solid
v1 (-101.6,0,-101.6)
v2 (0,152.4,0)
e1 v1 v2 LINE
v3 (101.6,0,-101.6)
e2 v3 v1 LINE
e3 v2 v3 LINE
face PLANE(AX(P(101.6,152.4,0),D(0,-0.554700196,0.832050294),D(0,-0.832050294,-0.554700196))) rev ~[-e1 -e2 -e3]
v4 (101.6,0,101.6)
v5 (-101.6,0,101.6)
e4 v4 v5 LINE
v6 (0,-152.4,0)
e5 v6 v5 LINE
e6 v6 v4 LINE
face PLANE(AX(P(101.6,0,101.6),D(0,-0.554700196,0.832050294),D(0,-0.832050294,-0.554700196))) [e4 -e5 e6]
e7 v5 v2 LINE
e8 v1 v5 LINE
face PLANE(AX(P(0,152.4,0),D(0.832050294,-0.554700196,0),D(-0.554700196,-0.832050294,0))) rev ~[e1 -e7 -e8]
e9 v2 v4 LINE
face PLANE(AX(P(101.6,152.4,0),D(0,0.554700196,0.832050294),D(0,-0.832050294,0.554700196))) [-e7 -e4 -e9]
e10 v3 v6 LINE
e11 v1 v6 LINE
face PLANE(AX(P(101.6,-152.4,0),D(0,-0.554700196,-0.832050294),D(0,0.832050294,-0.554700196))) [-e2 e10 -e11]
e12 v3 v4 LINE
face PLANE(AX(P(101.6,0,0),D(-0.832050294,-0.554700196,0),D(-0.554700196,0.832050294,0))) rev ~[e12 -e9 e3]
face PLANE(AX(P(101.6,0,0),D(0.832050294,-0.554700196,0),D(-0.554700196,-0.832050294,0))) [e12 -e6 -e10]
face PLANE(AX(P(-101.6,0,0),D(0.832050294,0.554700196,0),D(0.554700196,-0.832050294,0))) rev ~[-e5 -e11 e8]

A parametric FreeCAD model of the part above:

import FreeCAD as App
import Part
import Sketcher
Q = App.Units.Quantity


def add_polygon(sketch, points):
    """Adds a closed chain of lines whose ends are joined by coincident constraints."""
    first, n = sketch.GeometryCount, len(points)
    for a, b in zip(points, points[1:] + points[:1]):
        sketch.addGeometry(Part.LineSegment(App.Vector(*a, 0), App.Vector(*b, 0)), False)
    for i in range(n):
        sketch.addConstraint(Sketcher.Constraint("Coincident", first + i, 2, first + (i + 1) % n, 1))

doc = App.newDocument("Part")
params = doc.addObject("Spreadsheet::Sheet", "Params")
for row, (alias, value) in enumerate([
    ("sketch1_width", "8 in"),
    ("pad1_length", "12 in"),
    ("sketch2_width", "6 in"),
    ("sketch2_height", "4 in"),
    ("pocket1_length", "12 in"),
    ("sketch3_width", "4 in"),
    ("sketch3_height", "6 in"),
], start=1):
    params.set(f"A{row}", alias)
    params.set(f"B{row}", "=" + value)
    params.setAlias(f"B{row}", alias)

body = doc.addObject("PartDesign::Body", "Body")

# Sketch on XZ plane
sketch1 = body.newObject("Sketcher::SketchObject", "Sketch")
sketch1.AttachmentSupport = (doc.getObject("XZ_Plane"), [""])
sketch1.MapMode = "FlatFace"
add_polygon(sketch1, [(102, 102), (102, -102), (-102, -102), (-102, 102)])  # lines 0-3
sketch1.addConstraint([
    Sketcher.Constraint("Vertical", 0),
    Sketcher.Constraint("Horizontal", 1),
    Sketcher.Constraint("Vertical", 2),
    Sketcher.Constraint("Horizontal", 3),
    Sketcher.Constraint("Symmetric", 0, 2, 2, 2, -1, 1),
    Sketcher.Constraint("Equal", 3, 0),
    Sketcher.Constraint("DistanceX", 1, 2, 1, 1, Q("8 in")),
])
sketch1.setExpression("Constraints[10]", "Params.sketch1_width")
pad1 = body.newObject("PartDesign::Pad", "Pad")
pad1.Profile = sketch1
pad1.setExpression("Length", "Params.pad1_length")
pad1.Midplane = True

# Sketch on YZ plane
sketch2 = body.newObject("Sketcher::SketchObject", "Sketch001")
sketch2.AttachmentSupport = (doc.getObject("YZ_Plane"), [""])
sketch2.MapMode = "FlatFace"
sketch2.AttachmentOffset = App.Placement(App.Vector(0, 0, 4 * 25.4), App.Rotation())
add_polygon(sketch2, [(0, -102), (152, -102), (152, 0)])  # lines 0-2
add_polygon(sketch2, [(0, 102), (152, 0), (152, 102)])  # lines 3-5
add_polygon(sketch2, [(-152, -102), (0, -102), (-152, 0)])  # lines 6-8
add_polygon(sketch2, [(-152, 0), (0, 102), (-152, 102)])  # lines 9-11
sketch2.addConstraint([
    Sketcher.Constraint("Horizontal", 0),
    Sketcher.Constraint("Vertical", 1),
    Sketcher.Constraint("Vertical", 4),
    Sketcher.Constraint("Horizontal", 5),
    Sketcher.Constraint("Horizontal", 6),
    Sketcher.Constraint("Vertical", 8),
    Sketcher.Constraint("Horizontal", 10),
    Sketcher.Constraint("Vertical", 11),
    Sketcher.Constraint("Coincident", 3, 2, 1, 2),
    Sketcher.Constraint("Coincident", 6, 2, 2, 2),
    Sketcher.Constraint("Coincident", 9, 2, 5, 2),
    Sketcher.Constraint("Coincident", 11, 2, 7, 2),
    Sketcher.Constraint("Symmetric", 2, 2, 5, 2, -1, 1),
    Sketcher.Constraint("Symmetric", 1, 2, 7, 2, -1, 1),
    Sketcher.Constraint("PointOnObject", 1, 2, -1),
    Sketcher.Constraint("PointOnObject", 2, 2, -2),
    Sketcher.Constraint("DistanceX", 0, 1, 0, 2, Q("6 in")),
    Sketcher.Constraint("DistanceY", 1, 1, 1, 2, Q("4 in")),
])
sketch2.setExpression("Constraints[28]", "Params.sketch2_width")
sketch2.setExpression("Constraints[29]", "Params.sketch2_height")
pocket1 = body.newObject("PartDesign::Pocket", "Pocket")
pocket1.Profile = sketch2
pocket1.setExpression("Length", "Params.pocket1_length")

# Sketch on XY plane
sketch3 = body.newObject("Sketcher::SketchObject", "Sketch002")
sketch3.AttachmentSupport = (doc.getObject("XY_Plane"), [""])
sketch3.MapMode = "FlatFace"
add_polygon(sketch3, [(0, 152), (-102, 152), (-102, 0)])  # lines 0-2
add_polygon(sketch3, [(102, 152), (0, 152), (102, 0)])  # lines 3-5
add_polygon(sketch3, [(0, -152), (-102, 0), (-102, -152)])  # lines 6-8
add_polygon(sketch3, [(102, -152), (102, 0), (0, -152)])  # lines 9-11
sketch3.addConstraint([
    Sketcher.Constraint("Horizontal", 0),
    Sketcher.Constraint("Vertical", 1),
    Sketcher.Constraint("Horizontal", 3),
    Sketcher.Constraint("Vertical", 5),
    Sketcher.Constraint("Vertical", 7),
    Sketcher.Constraint("Horizontal", 8),
    Sketcher.Constraint("Vertical", 9),
    Sketcher.Constraint("Horizontal", 11),
    Sketcher.Constraint("Coincident", 3, 2, 2, 2),
    Sketcher.Constraint("Coincident", 6, 2, 1, 2),
    Sketcher.Constraint("Coincident", 9, 2, 4, 2),
    Sketcher.Constraint("Coincident", 10, 2, 8, 2),
    Sketcher.Constraint("Symmetric", 1, 2, 4, 2, -1, 1),
    Sketcher.Constraint("Symmetric", 2, 2, 8, 2, -1, 1),
    Sketcher.Constraint("PointOnObject", 1, 2, -1),
    Sketcher.Constraint("PointOnObject", 2, 2, -2),
    Sketcher.Constraint("DistanceX", 0, 2, 0, 1, Q("4 in")),
    Sketcher.Constraint("DistanceY", 1, 2, 1, 1, Q("6 in")),
])
sketch3.setExpression("Constraints[28]", "Params.sketch3_width")
sketch3.setExpression("Constraints[29]", "Params.sketch3_height")
pocket2 = body.newObject("PartDesign::Pocket", "Pocket001")
pocket2.Profile = sketch3
pocket2.Type = "ThroughAll"
pocket2.Midplane = True

doc.recompute()
